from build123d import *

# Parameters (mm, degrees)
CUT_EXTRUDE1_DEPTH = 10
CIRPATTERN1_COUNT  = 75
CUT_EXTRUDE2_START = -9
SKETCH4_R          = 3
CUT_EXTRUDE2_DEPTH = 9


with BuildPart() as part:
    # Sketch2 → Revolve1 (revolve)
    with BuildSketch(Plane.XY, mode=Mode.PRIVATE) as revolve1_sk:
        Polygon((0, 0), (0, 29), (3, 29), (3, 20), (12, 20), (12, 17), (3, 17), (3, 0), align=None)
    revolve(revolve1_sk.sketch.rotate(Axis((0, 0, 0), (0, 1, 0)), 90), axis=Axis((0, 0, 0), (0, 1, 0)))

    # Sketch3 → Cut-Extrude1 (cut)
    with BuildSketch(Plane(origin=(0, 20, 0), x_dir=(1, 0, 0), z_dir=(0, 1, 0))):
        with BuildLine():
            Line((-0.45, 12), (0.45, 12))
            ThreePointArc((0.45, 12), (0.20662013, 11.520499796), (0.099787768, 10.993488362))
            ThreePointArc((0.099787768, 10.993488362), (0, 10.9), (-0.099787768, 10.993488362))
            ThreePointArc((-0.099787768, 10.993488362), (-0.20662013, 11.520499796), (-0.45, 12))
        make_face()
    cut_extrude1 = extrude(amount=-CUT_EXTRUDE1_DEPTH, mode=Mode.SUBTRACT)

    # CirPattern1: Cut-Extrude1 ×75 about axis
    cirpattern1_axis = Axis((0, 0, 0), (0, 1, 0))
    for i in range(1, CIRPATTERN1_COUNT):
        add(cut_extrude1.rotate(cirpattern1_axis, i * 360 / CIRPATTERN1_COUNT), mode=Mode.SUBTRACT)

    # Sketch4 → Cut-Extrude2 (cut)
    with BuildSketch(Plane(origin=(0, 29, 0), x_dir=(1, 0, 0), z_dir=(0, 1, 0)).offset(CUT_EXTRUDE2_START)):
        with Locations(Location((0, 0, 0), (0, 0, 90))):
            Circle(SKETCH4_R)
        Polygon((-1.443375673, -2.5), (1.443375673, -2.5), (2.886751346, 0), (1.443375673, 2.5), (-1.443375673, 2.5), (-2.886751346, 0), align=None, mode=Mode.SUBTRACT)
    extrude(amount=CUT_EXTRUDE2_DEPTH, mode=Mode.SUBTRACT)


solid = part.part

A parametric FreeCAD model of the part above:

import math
import FreeCAD as App
import Part
import Sketcher
Q = App.Units.Quantity


def add_polygon(sketch, points):
    """Adds a closed chain of lines whose ends are joined by coincident constraints."""
    first, n = sketch.GeometryCount, len(points)
    for a, b in zip(points, points[1:] + points[:1]):
        sketch.addGeometry(Part.LineSegment(App.Vector(*a, 0), App.Vector(*b, 0)), False)
    for i in range(n):
        sketch.addConstraint(Sketcher.Constraint("Coincident", first + i, 2, first + (i + 1) % n, 1))

doc = App.newDocument("Part")
body = doc.addObject("PartDesign::Body", "Body")

sketch1 = body.newObject("Sketcher::SketchObject", "Sketch")
sketch1.AttachmentSupport = (doc.getObject("XY_Plane"), [""])
sketch1.MapMode = "FlatFace"
add_polygon(sketch1, [(0, 29), (0, 0), (3, 0), (3, 17), (12, 17), (12, 20), (3, 20), (3, 29)])
sketch1.addConstraint([
    Sketcher.Constraint("Vertical", 0),
    Sketcher.Constraint("Horizontal", 1),
    Sketcher.Constraint("Vertical", 2),
    Sketcher.Constraint("Horizontal", 3),
    Sketcher.Constraint("Vertical", 4),
    Sketcher.Constraint("Horizontal", 5),
    Sketcher.Constraint("Vertical", 6),
    Sketcher.Constraint("Horizontal", 7),
    Sketcher.Constraint("Coincident", 0, 2, -1, 1),
    Sketcher.Constraint("Vertical", 2, 2, 5, 2),
    Sketcher.Constraint("Equal", 7, 4),
    Sketcher.Constraint("Equal", 5, 6),
    Sketcher.Constraint("DistanceX", 1, 1, 1, 2, Q("3 mm")),
    Sketcher.Constraint("DistanceX", 3, 1, 3, 2, Q("9 mm")),
    Sketcher.Constraint("DistanceY", 0, 2, 0, 1, Q("29 mm")),
])
revolution = body.newObject("PartDesign::Revolution", "Revolution")
revolution.Profile = sketch1
revolution.ReferenceAxis = (sketch1, ["V_Axis"])
revolution.Angle = 360

sketch2 = body.newObject("Sketcher::SketchObject", "Sketch001")
sketch2.AttachmentSupport = (doc.getObject("XZ_Plane"), [""])
sketch2.MapMode = "FlatFace"
sketch2.AttachmentOffset = App.Placement(App.Vector(0, 0, -20), App.Rotation())
sketch2.addGeometry([
    Part.LineSegment(App.Vector(0.45, -12, 0), App.Vector(-0.45, -12, 0)),
    Part.ArcOfCircle(Part.Circle(App.Vector(-2.1, -10.86, 0), App.Vector(0, 0, 1), 2), math.radians(-35), math.radians(-4)),
    Part.ArcOfCircle(Part.Circle(App.Vector(0, -11, 0), App.Vector(0, 0, 1), 0.1), math.radians(4), math.radians(176)),
    Part.ArcOfCircle(Part.Circle(App.Vector(2.1, -10.86, 0), App.Vector(0, 0, 1), 2), math.radians(-176), math.radians(-145)),
], False)
sketch2.addConstraint([
    Sketcher.Constraint("Coincident", 0, 2, 1, 1),
    Sketcher.Constraint("Tangent", 1, 2, 2, 2),
    Sketcher.Constraint("Tangent", 2, 1, 3, 1),
    Sketcher.Constraint("Coincident", 3, 2, 0, 1),
    Sketcher.Constraint("Horizontal", 0),
    Sketcher.Constraint("Equal", 1, 3),
    Sketcher.Constraint("Symmetric", 1, 3, 3, 3, -2),
    Sketcher.Constraint("Radius", 1, Q("2 mm")),
    Sketcher.Constraint("Radius", 2, Q("0.1 mm")),
    Sketcher.Constraint("DistanceX", 0, 2, 0, 1, Q("0.9 mm")),
    Sketcher.Constraint("DistanceY", 2, 3, -1, 1, Q("11 mm")),
    Sketcher.Constraint("DistanceY", 0, 2, -1, 1, Q("12 mm")),
])
pocket1 = body.newObject("PartDesign::Pocket", "Pocket")
pocket1.Profile = sketch2
pocket1.Length = 10
pocket1.Reversed = True
doc.recompute()

polarpattern = body.newObject("PartDesign::PolarPattern", "PolarPattern")
polarpattern.Originals = [pocket1]
polarpattern.Axis = (doc.getObject("Y_Axis"), [""])
polarpattern.Angle = 360
polarpattern.Occurrences = 75
body.Tip = polarpattern

sketch3 = body.newObject("Sketcher::SketchObject", "Sketch002")
sketch3.AttachmentSupport = (doc.getObject("XZ_Plane"), [""])
sketch3.MapMode = "FlatFace"
sketch3.AttachmentOffset = App.Placement(App.Vector(0, 0, -20), App.Rotation())
sketch3.addGeometry(Part.Circle(App.Vector(0, 0, 0), App.Vector(0, 0, 1), 3), False)
add_polygon(sketch3, [(1.4, 2.5), (-1.4, 2.5), (-2.9, 0), (-1.4, -2.5), (1.4, -2.5), (2.9, 0)])
sketch3.addConstraint([
    Sketcher.Constraint("Horizontal", 1),
    Sketcher.Constraint("Horizontal", 4),
    Sketcher.Constraint("Coincident", 0, 3, -1, 1),
    Sketcher.Constraint("Symmetric", 1, 2, 4, 2, -1, 1),
    Sketcher.Constraint("Symmetric", 2, 2, 5, 2, -1, 1),
    Sketcher.Constraint("PointOnObject", 2, 2, -1),
    Sketcher.Constraint("Parallel", 3, 6),
    Sketcher.Constraint("Vertical", 1, 2, 3, 2),
    Sketcher.Constraint("Diameter", 0, Q("6 mm")),
    Sketcher.Constraint("Angle", 2, Q("-120 deg")),
    Sketcher.Constraint("DistanceY", 3, 2, 1, 2, Q("5 mm")),
    Sketcher.Constraint("DistanceX", 1, 2, 1, 1, Q("2.886751 mm")),
])
pocket2 = body.newObject("PartDesign::Pocket", "Pocket001")
pocket2.Profile = sketch3
pocket2.Length = 9

doc.recompute()
